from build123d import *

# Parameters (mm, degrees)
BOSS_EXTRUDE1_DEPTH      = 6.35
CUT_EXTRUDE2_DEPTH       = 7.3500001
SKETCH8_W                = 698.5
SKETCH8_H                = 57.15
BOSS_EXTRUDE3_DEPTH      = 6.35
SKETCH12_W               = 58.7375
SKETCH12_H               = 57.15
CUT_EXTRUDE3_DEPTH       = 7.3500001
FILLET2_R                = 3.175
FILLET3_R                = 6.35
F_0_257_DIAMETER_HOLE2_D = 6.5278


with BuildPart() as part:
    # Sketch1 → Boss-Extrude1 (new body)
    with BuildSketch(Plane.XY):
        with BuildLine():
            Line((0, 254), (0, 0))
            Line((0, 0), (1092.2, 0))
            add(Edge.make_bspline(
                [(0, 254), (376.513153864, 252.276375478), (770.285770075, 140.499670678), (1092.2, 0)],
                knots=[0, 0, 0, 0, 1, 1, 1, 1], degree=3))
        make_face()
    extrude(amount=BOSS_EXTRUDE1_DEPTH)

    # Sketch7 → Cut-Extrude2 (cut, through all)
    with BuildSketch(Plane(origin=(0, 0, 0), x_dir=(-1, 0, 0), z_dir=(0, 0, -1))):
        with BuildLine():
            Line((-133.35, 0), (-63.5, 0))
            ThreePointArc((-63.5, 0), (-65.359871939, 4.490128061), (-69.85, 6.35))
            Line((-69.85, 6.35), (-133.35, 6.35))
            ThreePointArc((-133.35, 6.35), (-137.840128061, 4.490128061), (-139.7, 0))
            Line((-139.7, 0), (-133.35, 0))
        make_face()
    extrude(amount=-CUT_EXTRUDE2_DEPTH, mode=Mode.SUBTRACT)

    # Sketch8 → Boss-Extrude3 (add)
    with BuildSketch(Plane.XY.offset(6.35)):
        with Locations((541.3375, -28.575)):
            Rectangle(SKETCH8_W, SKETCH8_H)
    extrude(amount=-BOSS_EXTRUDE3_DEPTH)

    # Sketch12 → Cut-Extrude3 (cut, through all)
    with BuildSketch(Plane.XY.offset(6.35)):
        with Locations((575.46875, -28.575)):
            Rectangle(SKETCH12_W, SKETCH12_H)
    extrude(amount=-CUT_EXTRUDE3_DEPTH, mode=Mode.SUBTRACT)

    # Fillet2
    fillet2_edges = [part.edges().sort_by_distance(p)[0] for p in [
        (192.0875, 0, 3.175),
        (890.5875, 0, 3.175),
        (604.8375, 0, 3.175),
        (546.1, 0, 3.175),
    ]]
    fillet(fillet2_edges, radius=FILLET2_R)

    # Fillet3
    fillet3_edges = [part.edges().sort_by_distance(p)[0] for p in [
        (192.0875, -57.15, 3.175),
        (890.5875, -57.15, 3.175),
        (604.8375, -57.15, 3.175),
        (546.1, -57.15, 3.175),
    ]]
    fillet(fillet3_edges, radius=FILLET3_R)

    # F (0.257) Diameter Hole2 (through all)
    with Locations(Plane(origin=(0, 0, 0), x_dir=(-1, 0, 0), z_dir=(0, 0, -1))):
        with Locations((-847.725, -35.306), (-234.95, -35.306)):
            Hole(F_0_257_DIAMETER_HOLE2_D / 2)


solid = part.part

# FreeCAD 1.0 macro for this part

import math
import FreeCAD as App
import Part
import Sketcher
Q = App.Units.Quantity


def edges_at(feature, points):
    """Names of the edges that pass closest to the given points."""
    edges = feature.Shape.Edges
    near = lambda p: min(range(len(edges)), key=lambda i: edges[i].distToShape(Part.Vertex(*p))[0])
    return sorted({f"Edge{near(p) + 1}" for p in points})


def add_polygon(sketch, points):
    """Adds a closed chain of lines whose ends are joined by coincident constraints."""
    first, n = sketch.GeometryCount, len(points)
    for a, b in zip(points, points[1:] + points[:1]):
        sketch.addGeometry(Part.LineSegment(App.Vector(*a, 0), App.Vector(*b, 0)), False)
    for i in range(n):
        sketch.addConstraint(Sketcher.Constraint("Coincident", first + i, 2, first + (i + 1) % n, 1))

doc = App.newDocument("Part")
params = doc.addObject("Spreadsheet::Sheet", "Params")
for row, (alias, value) in enumerate([
    ("pad1_length", "0.25 in"),
    ("sketch2_width", "3 in"),
    ("sketch2_radius", "0.25 in"),
    ("sketch3_width", "27.5 in"),
    ("sketch3_height", "2.25 in"),
    ("pad2_length", "0.25 in"),
    ("sketch4_height", "2.25 in"),
    ("sketch4_width", "2.3125 in"),
    ("fillet_radius", "0.125 in"),
    ("fillet2_radius", "0.25 in"),
    ("sketch5_diameter", "0.257 in"),
    ("hole_diameter", "0.257 in"),
], start=1):
    params.set(f"A{row}", alias)
    params.set(f"B{row}", "=" + value)
    params.setAlias(f"B{row}", alias)

body = doc.addObject("PartDesign::Body", "Body")

# Sketch on XY plane
sketch1 = body.newObject("Sketcher::SketchObject", "Sketch")
sketch1.AttachmentSupport = (doc.getObject("XY_Plane"), [""])
sketch1.MapMode = "FlatFace"
sketch1.addGeometry(Part.LineSegment(App.Vector(0, 254, 0), App.Vector(0, 0, 0)), False)
sketch1.addGeometry(Part.LineSegment(App.Vector(0, 0, 0), App.Vector(1092.2, 0, 0)), False)
sketch1.addGeometry(Part.BSplineCurve([App.Vector(0, 254, 0), App.Vector(376.513154, 252.276375, 0), App.Vector(770.28577, 140.499671, 0), App.Vector(1092.2, 0, 0)], [4, 4], [0, 1], False, 3, [1, 1, 1, 1], False), False)
sketch1.addConstraint(Sketcher.Constraint("Block", 2))
sketch1.addConstraint(Sketcher.Constraint("Coincident", 0, 2, 1, 1))
sketch1.addConstraint(Sketcher.Constraint("Coincident", 1, 2, 2, 2))
sketch1.addConstraint(Sketcher.Constraint("Coincident", 2, 1, 0, 1))
sketch1.addConstraint(Sketcher.Constraint("Vertical", 0))
sketch1.addConstraint(Sketcher.Constraint("Horizontal", 1))
pad1 = body.newObject("PartDesign::Pad", "Pad")
pad1.Profile = sketch1
pad1.setExpression("Length", "Params.pad1_length")

# Sketch on XY plane
sketch2 = body.newObject("Sketcher::SketchObject", "Sketch001")
sketch2.AttachmentSupport = (doc.getObject("XY_Plane"), [""])
sketch2.MapMode = "FlatFace"
sketch2.addGeometry(Part.ArcOfCircle(Part.Circle(App.Vector(69.85, 0, 0), App.Vector(0, 0, 1), 6.35), math.radians(90), math.radians(180)), False)
sketch2.addGeometry(Part.LineSegment(App.Vector(69.85, 6.35, 0), App.Vector(133.35, 6.35, 0)), False)
sketch2.addGeometry(Part.ArcOfCircle(Part.Circle(App.Vector(133.35, 0, 0), App.Vector(0, 0, 1), 6.35), math.radians(0), math.radians(90)), False)
sketch2.addGeometry(Part.LineSegment(App.Vector(139.7, 0, 0), App.Vector(63.5, 0, 0)), False)
sketch2.addConstraint(Sketcher.Constraint("Tangent", 0, 1, 1, 1))
sketch2.addConstraint(Sketcher.Constraint("Tangent", 1, 2, 2, 2))
sketch2.addConstraint(Sketcher.Constraint("Coincident", 2, 1, 3, 1))
sketch2.addConstraint(Sketcher.Constraint("Coincident", 3, 2, 0, 2))
sketch2.addConstraint(Sketcher.Constraint("Horizontal", 1))
sketch2.addConstraint(Sketcher.Constraint("Horizontal", 3))
sketch2.addConstraint(Sketcher.Constraint("Equal", 0, 2))
sketch2.addConstraint(Sketcher.Constraint("PointOnObject", 0, 3, -1))
sketch2.addConstraint(Sketcher.Constraint("PointOnObject", 2, 1, -1))
sketch2.addConstraint(Sketcher.Constraint("DistanceX", 3, 2, 3, 1, Q("3 in")))
sketch2.addConstraint(Sketcher.Constraint("Radius", 0, Q("0.25 in")))
sketch2.addConstraint(Sketcher.Constraint("DistanceX", -1, 1, 2, 1, Q("5.5 in")))
sketch2.setExpression("Constraints[9]", "Params.sketch2_width")
sketch2.setExpression("Constraints[10]", "Params.sketch2_radius")
pocket1 = body.newObject("PartDesign::Pocket", "Pocket")
pocket1.Profile = sketch2
pocket1.Type = "ThroughAll"
pocket1.Reversed = True

# Sketch on XY plane
sketch3 = body.newObject("Sketcher::SketchObject", "Sketch002")
sketch3.AttachmentSupport = (doc.getObject("XY_Plane"), [""])
sketch3.MapMode = "FlatFace"
sketch3.AttachmentOffset = App.Placement(App.Vector(0, 0, 0.25 * 25.4), App.Rotation())
add_polygon(sketch3, [(192.0875, 0), (192.0875, -57.15), (890.5875, -57.15), (890.5875, 0)])  # lines 0-3
sketch3.addConstraint(Sketcher.Constraint("Vertical", 0))
sketch3.addConstraint(Sketcher.Constraint("Horizontal", 1))
sketch3.addConstraint(Sketcher.Constraint("Vertical", 2))
sketch3.addConstraint(Sketcher.Constraint("Horizontal", 3))
sketch3.addConstraint(Sketcher.Constraint("PointOnObject", 2, 2, -1))
sketch3.addConstraint(Sketcher.Constraint("DistanceX", 1, 1, 1, 2, Q("27.5 in")))
sketch3.addConstraint(Sketcher.Constraint("DistanceY", 0, 2, 0, 1, Q("2.25 in")))
sketch3.addConstraint(Sketcher.Constraint("DistanceX", -1, 1, 0, 2, Q("7.5625 in")))
sketch3.setExpression("Constraints[9]", "Params.sketch3_width")
sketch3.setExpression("Constraints[10]", "Params.sketch3_height")
pad2 = body.newObject("PartDesign::Pad", "Pad001")
pad2.Profile = sketch3
pad2.setExpression("Length", "Params.pad2_length")
pad2.Reversed = True

# Sketch on XY plane
sketch4 = body.newObject("Sketcher::SketchObject", "Sketch003")
sketch4.AttachmentSupport = (doc.getObject("XY_Plane"), [""])
sketch4.MapMode = "FlatFace"
sketch4.AttachmentOffset = App.Placement(App.Vector(0, 0, 0.25 * 25.4), App.Rotation())
add_polygon(sketch4, [(546.1, 0), (546.1, -57.15), (604.8375, -57.15), (604.8375, 0)])  # lines 0-3
sketch4.addConstraint(Sketcher.Constraint("Vertical", 0))
sketch4.addConstraint(Sketcher.Constraint("Horizontal", 1))
sketch4.addConstraint(Sketcher.Constraint("Vertical", 2))
sketch4.addConstraint(Sketcher.Constraint("Horizontal", 3))
sketch4.addConstraint(Sketcher.Constraint("PointOnObject", 2, 2, -1))
sketch4.addConstraint(Sketcher.Constraint("DistanceY", 0, 2, 0, 1, Q("2.25 in")))
sketch4.addConstraint(Sketcher.Constraint("DistanceX", -1, 1, 0, 2, Q("21.5 in")))
sketch4.addConstraint(Sketcher.Constraint("DistanceX", 1, 1, 1, 2, Q("2.3125 in")))
sketch4.setExpression("Constraints[9]", "Params.sketch4_height")
sketch4.setExpression("Constraints[11]", "Params.sketch4_width")
pocket2 = body.newObject("PartDesign::Pocket", "Pocket001")
pocket2.Profile = sketch4
pocket2.Type = "ThroughAll"
doc.recompute()

fillet = body.newObject("PartDesign::Fillet", "Fillet")
fillet.Base = (pocket2, edges_at(pocket2, [
    (192.088, 0, 3.175),
    (890.587, 0, 3.175),
    (604.837, 0, 3.175),
    (546.1, 0, 3.175),
]))
fillet.setExpression("Radius", "Params.fillet_radius")
doc.recompute()

fillet2 = body.newObject("PartDesign::Fillet", "Fillet001")
fillet2.Base = (fillet, edges_at(fillet, [
    (192.088, -57.15, 3.175),
    (890.587, -57.15, 3.175),
    (604.837, -57.15, 3.175),
    (546.1, -57.15, 3.175),
]))
fillet2.setExpression("Radius", "Params.fillet2_radius")

# Sketch on XY plane
sketch5 = body.newObject("Sketcher::SketchObject", "Sketch004")
sketch5.AttachmentSupport = (doc.getObject("XY_Plane"), [""])
sketch5.MapMode = "FlatFace"
sketch5.addGeometry(Part.Circle(App.Vector(847.725, -35.306, 0), App.Vector(0, 0, 1), 3.2639), False)
sketch5.addGeometry(Part.Circle(App.Vector(234.95, -35.306, 0), App.Vector(0, 0, 1), 3.2639), False)
sketch5.addConstraint(Sketcher.Constraint("Equal", 0, 1))
sketch5.addConstraint(Sketcher.Constraint("Horizontal", 0, 3, 1, 3))
sketch5.addConstraint(Sketcher.Constraint("Diameter", 0, Q("0.257 in")))
sketch5.addConstraint(Sketcher.Constraint("DistanceY", 0, 3, -1, 1, Q("1.39 in")))
sketch5.addConstraint(Sketcher.Constraint("DistanceX", -1, 1, 1, 3, Q("9.25 in")))
sketch5.addConstraint(Sketcher.Constraint("DistanceX", -1, 1, 0, 3, Q("33.375 in")))
sketch5.setExpression("Constraints[2]", "Params.sketch5_diameter")
doc.recompute()
hole = body.newObject("PartDesign::Hole", "Hole")
hole.Profile = sketch5
hole.ThreadType = "None"
hole.setExpression("Diameter", "Params.hole_diameter")
hole.DepthType = "ThroughAll"
hole.Reversed = True

doc.recompute()
